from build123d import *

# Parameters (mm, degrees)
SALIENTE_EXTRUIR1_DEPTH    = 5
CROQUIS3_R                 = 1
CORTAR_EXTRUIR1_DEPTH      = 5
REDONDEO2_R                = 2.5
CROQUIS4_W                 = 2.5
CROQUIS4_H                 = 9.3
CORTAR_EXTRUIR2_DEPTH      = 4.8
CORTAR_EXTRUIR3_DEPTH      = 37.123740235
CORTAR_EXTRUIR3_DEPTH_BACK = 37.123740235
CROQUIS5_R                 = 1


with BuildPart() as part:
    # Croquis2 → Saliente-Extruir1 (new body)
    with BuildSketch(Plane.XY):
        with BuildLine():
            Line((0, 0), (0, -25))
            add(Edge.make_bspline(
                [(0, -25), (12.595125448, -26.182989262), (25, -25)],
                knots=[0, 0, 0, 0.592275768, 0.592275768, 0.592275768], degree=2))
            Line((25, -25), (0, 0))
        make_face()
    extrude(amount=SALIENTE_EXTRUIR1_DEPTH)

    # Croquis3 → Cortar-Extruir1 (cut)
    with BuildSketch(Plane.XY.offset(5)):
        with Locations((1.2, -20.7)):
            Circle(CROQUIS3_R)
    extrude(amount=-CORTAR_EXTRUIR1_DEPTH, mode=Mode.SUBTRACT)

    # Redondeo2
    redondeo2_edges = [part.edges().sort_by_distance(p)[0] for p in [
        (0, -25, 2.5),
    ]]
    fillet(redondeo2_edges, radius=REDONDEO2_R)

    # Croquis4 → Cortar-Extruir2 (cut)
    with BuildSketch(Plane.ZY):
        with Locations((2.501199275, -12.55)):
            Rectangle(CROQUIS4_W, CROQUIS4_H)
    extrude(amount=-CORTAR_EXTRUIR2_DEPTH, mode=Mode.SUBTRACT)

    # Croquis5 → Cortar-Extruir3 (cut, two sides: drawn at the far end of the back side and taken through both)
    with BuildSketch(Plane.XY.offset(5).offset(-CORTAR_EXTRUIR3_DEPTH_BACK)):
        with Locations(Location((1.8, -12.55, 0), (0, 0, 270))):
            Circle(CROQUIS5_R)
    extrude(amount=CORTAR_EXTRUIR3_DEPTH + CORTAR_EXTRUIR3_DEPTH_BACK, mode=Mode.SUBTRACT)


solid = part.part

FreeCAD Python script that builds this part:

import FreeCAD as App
import Part
import Sketcher
from FreeCAD import Vector
Q = App.Units.Quantity


def edges_at(feature, points):
    """Names of the edges that pass closest to the given points."""
    edges = feature.Shape.Edges
    near = lambda p: min(range(len(edges)), key=lambda i: edges[i].distToShape(Part.Vertex(*p))[0])
    return sorted({f"Edge{near(p) + 1}" for p in points})


def add_polygon(sketch, points):
    """Adds a closed chain of lines whose ends are joined by coincident constraints."""
    first, n = sketch.GeometryCount, len(points)
    for a, b in zip(points, points[1:] + points[:1]):
        sketch.addGeometry(Part.LineSegment(App.Vector(*a, 0), App.Vector(*b, 0)), False)
    for i in range(n):
        sketch.addConstraint(Sketcher.Constraint("Coincident", first + i, 2, first + (i + 1) % n, 1))

doc = App.newDocument("Part")
body = doc.addObject("PartDesign::Body", "Body")

sketch1 = body.newObject("Sketcher::SketchObject", "Sketch")
sketch1.AttachmentSupport = (doc.getObject("XY_Plane"), [""])
sketch1.MapMode = "FlatFace"
sketch1.addGeometry([
    Part.LineSegment(Vector(0, 0, 0), Vector(0, -25, 0)),
    Part.BSplineCurve([Vector(0, -25, 0), Vector(12.595125, -26.182989, 0), Vector(25, -25, 0)], [3, 3], [0, 0.592275768], False, 2, [1, 1, 1], False),
    Part.LineSegment(Vector(25, -25, 0), Vector(0, 0, 0)),
], False)
sketch1.addConstraint([
    Sketcher.Constraint("Block", 1),
    Sketcher.Constraint("Coincident", 0, 2, 1, 1),
    Sketcher.Constraint("Coincident", 1, 2, 2, 1),
    Sketcher.Constraint("Coincident", 2, 2, 0, 1),
    Sketcher.Constraint("Vertical", 0),
    Sketcher.Constraint("DistanceY", 0, 2, 0, 1, Q("25 mm")),
])
pad1 = body.newObject("PartDesign::Pad", "Pad")
pad1.Profile = sketch1
pad1.Length = 5

sketch2 = body.newObject("Sketcher::SketchObject", "Sketch001")
sketch2.AttachmentSupport = (doc.getObject("XY_Plane"), [""])
sketch2.MapMode = "FlatFace"
sketch2.AttachmentOffset = App.Placement(Vector(0, 0, 5), App.Rotation())
sketch2.addGeometry(Part.Circle(Vector(1.2, -20.7, 0), Vector(0, 0, 1), 1), False)
sketch2.addConstraint([
    Sketcher.Constraint("Diameter", 0, Q("2 mm")),
    Sketcher.Constraint("DistanceX", -1, 1, 0, 3, Q("1.2 mm")),
    Sketcher.Constraint("DistanceY", 0, 3, -1, 1, Q("20.7 mm")),
])
pocket1 = body.newObject("PartDesign::Pocket", "Pocket")
pocket1.Profile = sketch2
pocket1.Length = 5
doc.recompute()

fillet = body.newObject("PartDesign::Fillet", "Fillet")
fillet.Base = (pocket1, edges_at(pocket1, [(0, -25, 2.5)]))
fillet.Radius = 2.5

sketch3 = body.newObject("Sketcher::SketchObject", "Sketch002")
sketch3.AttachmentSupport = (doc.getObject("YZ_Plane"), [""])
sketch3.MapMode = "FlatFace"
add_polygon(sketch3, [(-7.9, 1.3), (-17.2, 1.3), (-17.2, 3.8), (-7.9, 3.8)])
sketch3.addConstraint([
    Sketcher.Constraint("Horizontal", 0),
    Sketcher.Constraint("Vertical", 1),
    Sketcher.Constraint("Horizontal", 2),
    Sketcher.Constraint("Vertical", 3),
    Sketcher.Constraint("DistanceX", 0, 2, 0, 1, Q("9.3 mm")),
    Sketcher.Constraint("DistanceY", 1, 1, 1, 2, Q("2.5 mm")),
    Sketcher.Constraint("DistanceX", 0, 2, -1, 1, Q("17.2 mm")),
    Sketcher.Constraint("DistanceY", -1, 1, 0, 2, Q("1.251199 mm")),
])
pocket2 = body.newObject("PartDesign::Pocket", "Pocket001")
pocket2.Profile = sketch3
pocket2.Length = 4.8
pocket2.Reversed = True

sketch4 = body.newObject("Sketcher::SketchObject", "Sketch003")
sketch4.AttachmentSupport = (doc.getObject("XY_Plane"), [""])
sketch4.MapMode = "FlatFace"
sketch4.AttachmentOffset = App.Placement(Vector(0, 0, 5), App.Rotation())
sketch4.addGeometry(Part.Circle(Vector(1.8, -12.6, 0), Vector(0, 0, 1), 1), False)
sketch4.addConstraint([
    Sketcher.Constraint("Diameter", 0, Q("2 mm")),
    Sketcher.Constraint("DistanceX", -1, 1, 0, 3, Q("1.8 mm")),
    Sketcher.Constraint("DistanceY", 0, 3, -1, 1, Q("12.55 mm")),
])
pocket3 = body.newObject("PartDesign::Pocket", "Pocket002")
pocket3.Profile = sketch4
pocket3.Type = "ThroughAll"
pocket3.Midplane = True

doc.recompute()
